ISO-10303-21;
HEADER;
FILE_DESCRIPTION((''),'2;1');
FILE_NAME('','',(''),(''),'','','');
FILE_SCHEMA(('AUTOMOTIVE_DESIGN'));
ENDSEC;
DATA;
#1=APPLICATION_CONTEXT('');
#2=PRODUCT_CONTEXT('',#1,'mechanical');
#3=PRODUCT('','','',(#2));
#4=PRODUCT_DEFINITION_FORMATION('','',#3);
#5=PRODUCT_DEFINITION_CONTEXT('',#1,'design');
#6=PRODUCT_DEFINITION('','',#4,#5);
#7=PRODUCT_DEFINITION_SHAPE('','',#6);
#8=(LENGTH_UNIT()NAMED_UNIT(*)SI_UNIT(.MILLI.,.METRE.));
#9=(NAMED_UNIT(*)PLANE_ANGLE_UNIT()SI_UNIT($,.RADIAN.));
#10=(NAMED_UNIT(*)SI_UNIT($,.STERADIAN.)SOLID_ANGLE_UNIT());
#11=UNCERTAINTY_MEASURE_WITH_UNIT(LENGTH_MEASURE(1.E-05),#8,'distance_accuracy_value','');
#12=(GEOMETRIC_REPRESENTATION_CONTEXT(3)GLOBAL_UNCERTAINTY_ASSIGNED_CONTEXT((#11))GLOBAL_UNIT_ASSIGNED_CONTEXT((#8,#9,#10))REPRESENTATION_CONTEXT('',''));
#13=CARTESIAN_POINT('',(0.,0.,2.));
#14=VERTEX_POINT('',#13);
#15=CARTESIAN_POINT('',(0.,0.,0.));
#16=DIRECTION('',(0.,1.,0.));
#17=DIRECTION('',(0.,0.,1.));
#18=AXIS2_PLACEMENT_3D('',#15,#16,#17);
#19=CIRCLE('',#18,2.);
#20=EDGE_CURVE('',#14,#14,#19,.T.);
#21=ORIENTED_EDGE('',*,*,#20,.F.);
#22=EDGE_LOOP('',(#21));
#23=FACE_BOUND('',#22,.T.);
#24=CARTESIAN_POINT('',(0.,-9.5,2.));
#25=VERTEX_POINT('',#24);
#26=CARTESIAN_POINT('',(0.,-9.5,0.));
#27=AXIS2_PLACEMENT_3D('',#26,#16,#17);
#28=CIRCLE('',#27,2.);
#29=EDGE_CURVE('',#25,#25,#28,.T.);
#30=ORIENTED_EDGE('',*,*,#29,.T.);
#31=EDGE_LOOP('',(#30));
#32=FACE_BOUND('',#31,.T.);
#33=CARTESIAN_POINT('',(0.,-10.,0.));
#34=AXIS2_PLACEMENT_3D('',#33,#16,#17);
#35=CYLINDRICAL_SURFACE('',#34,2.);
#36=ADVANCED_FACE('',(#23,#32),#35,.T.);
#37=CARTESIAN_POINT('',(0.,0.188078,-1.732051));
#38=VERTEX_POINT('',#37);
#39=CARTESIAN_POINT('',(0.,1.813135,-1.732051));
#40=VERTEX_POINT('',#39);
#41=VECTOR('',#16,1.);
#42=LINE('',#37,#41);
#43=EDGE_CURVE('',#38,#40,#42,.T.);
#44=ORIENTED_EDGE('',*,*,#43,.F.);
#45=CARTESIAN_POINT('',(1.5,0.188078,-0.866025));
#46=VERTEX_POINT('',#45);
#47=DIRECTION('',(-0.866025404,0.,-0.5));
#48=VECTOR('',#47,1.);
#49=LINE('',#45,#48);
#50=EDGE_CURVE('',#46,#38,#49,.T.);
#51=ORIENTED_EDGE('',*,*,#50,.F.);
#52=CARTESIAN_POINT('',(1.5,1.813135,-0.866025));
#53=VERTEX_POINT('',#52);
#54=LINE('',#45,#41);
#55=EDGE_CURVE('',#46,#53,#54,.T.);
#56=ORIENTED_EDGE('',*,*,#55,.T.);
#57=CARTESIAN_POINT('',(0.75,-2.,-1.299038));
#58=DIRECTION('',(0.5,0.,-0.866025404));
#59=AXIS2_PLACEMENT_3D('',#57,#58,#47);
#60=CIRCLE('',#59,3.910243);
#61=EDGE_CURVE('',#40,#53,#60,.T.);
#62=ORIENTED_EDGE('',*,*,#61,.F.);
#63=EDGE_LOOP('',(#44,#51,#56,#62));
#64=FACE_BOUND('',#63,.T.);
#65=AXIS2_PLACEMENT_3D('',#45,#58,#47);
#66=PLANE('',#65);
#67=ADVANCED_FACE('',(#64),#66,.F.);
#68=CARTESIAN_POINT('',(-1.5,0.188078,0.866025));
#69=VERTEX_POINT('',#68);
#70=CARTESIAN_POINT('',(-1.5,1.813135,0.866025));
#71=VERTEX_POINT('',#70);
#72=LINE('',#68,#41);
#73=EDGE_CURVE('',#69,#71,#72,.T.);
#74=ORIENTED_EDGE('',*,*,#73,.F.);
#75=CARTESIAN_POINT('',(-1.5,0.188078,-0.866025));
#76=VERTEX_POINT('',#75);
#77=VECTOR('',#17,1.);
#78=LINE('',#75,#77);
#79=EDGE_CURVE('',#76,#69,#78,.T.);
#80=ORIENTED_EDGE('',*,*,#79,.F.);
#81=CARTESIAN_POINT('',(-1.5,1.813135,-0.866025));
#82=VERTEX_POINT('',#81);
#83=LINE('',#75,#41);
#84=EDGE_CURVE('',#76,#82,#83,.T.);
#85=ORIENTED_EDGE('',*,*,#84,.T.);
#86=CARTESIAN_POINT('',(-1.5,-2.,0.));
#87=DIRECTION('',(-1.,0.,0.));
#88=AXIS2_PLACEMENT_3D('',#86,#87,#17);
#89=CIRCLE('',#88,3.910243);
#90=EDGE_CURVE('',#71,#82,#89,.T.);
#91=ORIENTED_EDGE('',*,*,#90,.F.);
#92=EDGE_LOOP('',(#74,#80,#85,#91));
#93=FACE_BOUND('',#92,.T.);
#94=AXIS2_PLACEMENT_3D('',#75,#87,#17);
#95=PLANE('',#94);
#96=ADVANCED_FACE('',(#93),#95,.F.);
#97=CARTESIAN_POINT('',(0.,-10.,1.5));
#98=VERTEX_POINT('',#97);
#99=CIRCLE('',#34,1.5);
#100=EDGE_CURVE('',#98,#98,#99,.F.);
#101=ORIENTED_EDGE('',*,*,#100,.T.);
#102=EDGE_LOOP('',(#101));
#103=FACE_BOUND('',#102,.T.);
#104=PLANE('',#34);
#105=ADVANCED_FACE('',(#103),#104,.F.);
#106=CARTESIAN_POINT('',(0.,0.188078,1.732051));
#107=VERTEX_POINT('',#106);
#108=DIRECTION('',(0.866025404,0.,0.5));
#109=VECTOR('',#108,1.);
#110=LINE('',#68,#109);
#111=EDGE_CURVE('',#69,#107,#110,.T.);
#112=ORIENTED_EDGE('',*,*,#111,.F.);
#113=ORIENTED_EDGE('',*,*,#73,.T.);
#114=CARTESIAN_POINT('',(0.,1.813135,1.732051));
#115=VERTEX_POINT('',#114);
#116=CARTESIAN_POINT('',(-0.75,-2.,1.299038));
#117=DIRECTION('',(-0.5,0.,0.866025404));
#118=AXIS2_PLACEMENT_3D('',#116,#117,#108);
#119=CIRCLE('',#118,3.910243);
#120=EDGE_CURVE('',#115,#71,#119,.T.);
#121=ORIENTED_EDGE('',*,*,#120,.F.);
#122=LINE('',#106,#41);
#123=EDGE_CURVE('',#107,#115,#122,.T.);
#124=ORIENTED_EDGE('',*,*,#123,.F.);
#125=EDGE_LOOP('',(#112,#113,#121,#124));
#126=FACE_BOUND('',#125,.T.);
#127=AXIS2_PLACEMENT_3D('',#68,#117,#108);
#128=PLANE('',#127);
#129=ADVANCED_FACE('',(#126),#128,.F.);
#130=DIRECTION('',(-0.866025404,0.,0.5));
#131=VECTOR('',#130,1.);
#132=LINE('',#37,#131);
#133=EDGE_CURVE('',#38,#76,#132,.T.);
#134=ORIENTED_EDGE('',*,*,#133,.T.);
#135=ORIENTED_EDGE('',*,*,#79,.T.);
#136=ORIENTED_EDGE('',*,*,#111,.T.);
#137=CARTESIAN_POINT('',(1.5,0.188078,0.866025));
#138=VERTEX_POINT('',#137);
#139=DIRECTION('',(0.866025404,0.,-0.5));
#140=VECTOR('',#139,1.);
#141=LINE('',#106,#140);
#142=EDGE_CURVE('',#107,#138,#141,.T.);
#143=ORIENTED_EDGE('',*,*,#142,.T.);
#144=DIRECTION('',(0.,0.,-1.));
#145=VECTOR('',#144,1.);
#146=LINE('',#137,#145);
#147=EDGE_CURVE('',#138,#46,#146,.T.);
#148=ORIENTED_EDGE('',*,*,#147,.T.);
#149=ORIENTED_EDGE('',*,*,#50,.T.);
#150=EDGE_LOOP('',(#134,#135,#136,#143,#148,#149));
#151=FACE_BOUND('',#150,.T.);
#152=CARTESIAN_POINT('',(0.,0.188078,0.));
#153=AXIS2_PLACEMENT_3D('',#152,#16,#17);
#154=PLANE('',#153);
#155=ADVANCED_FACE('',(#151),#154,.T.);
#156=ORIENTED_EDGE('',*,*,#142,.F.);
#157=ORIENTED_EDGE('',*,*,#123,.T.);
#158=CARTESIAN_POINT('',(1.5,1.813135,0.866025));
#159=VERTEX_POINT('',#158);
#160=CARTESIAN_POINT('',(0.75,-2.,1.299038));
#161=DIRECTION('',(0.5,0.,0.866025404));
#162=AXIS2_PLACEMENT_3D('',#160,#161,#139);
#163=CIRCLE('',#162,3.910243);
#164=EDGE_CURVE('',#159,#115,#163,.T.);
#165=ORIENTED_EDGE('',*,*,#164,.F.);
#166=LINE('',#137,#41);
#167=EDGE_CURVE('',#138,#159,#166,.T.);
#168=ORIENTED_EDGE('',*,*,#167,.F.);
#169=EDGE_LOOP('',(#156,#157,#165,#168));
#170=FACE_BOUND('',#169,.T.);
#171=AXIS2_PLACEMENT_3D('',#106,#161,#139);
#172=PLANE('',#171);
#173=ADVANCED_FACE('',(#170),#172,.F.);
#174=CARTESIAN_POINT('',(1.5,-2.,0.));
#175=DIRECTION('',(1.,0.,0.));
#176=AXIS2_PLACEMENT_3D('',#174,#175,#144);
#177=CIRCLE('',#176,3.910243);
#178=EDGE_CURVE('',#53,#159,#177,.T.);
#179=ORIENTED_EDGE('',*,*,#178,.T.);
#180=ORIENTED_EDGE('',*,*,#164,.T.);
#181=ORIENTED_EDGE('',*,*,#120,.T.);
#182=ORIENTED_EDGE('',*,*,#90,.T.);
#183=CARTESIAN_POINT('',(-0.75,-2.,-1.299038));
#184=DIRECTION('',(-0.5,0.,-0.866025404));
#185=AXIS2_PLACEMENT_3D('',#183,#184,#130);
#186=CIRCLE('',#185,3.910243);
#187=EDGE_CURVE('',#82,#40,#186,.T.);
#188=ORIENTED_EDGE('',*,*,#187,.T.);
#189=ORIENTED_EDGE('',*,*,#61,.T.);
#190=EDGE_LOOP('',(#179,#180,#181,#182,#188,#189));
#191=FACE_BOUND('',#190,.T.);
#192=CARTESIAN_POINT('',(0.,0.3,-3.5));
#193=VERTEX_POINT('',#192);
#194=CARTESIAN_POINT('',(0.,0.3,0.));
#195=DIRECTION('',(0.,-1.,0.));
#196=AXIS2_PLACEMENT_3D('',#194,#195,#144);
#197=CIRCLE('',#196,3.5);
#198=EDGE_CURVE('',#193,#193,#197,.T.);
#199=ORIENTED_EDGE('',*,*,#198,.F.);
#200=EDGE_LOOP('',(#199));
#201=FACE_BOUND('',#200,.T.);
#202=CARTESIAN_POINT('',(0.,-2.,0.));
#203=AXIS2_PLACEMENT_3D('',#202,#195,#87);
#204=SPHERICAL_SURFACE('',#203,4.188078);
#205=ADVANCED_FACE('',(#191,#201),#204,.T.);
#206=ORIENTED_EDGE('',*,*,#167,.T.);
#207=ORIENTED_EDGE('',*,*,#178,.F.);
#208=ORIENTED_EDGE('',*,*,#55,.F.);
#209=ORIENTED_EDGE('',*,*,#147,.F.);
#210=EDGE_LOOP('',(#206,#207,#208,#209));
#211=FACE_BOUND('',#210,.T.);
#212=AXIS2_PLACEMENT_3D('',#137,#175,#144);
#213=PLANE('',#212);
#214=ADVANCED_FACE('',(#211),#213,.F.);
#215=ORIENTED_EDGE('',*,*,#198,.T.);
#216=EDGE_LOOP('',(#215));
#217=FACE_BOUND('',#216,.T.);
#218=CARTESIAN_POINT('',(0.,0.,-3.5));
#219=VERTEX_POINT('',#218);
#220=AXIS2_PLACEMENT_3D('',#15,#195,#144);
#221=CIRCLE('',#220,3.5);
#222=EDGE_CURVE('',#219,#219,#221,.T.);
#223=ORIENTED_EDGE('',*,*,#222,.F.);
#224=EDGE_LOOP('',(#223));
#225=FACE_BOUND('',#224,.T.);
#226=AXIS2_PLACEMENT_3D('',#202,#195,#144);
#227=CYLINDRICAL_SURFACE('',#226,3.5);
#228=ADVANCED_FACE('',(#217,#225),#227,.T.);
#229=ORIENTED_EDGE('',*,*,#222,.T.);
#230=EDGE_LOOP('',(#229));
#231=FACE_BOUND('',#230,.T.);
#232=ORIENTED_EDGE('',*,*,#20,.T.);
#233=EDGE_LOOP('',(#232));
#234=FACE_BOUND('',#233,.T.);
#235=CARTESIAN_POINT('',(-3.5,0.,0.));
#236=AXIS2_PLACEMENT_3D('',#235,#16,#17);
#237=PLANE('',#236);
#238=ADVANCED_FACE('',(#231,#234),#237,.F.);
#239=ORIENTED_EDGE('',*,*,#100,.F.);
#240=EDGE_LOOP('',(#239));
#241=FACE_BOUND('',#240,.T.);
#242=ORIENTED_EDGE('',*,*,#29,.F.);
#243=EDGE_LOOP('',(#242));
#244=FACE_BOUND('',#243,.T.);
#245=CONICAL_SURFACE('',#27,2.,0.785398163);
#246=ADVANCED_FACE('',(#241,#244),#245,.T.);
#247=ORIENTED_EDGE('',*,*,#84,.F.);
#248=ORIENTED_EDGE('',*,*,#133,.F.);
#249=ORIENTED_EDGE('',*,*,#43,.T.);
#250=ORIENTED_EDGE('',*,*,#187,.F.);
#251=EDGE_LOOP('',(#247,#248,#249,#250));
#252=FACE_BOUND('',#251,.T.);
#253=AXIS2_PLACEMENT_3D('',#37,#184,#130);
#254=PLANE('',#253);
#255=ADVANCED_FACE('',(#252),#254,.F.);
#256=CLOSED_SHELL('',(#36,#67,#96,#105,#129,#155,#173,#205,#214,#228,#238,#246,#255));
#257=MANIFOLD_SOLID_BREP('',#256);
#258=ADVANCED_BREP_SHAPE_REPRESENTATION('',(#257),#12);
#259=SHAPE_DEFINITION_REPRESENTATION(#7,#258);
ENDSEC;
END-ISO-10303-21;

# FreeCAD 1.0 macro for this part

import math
import FreeCAD as App
import Part
import Sketcher
Q = App.Units.Quantity


def edges_at(feature, points):
    """Names of the edges that pass closest to the given points."""
    edges = feature.Shape.Edges
    near = lambda p: min(range(len(edges)), key=lambda i: edges[i].distToShape(Part.Vertex(*p))[0])
    return sorted({f"Edge{near(p) + 1}" for p in points})


def add_polygon(sketch, points):
    """Adds a closed chain of lines whose ends are joined by coincident constraints."""
    first, n = sketch.GeometryCount, len(points)
    for a, b in zip(points, points[1:] + points[:1]):
        sketch.addGeometry(Part.LineSegment(App.Vector(*a, 0), App.Vector(*b, 0)), False)
    for i in range(n):
        sketch.addConstraint(Sketcher.Constraint("Coincident", first + i, 2, first + (i + 1) % n, 1))

doc = App.newDocument("Part")
params = doc.addObject("Spreadsheet::Sheet", "Params")
for row, (alias, value) in enumerate([
    ("sketch1_diameter", "4 mm"),
    ("pad1_length", "10 mm"),
    ("sketch2_width", "3.5 mm"),
    ("sketch2_height", "0.3 mm"),
    ("revolution_angle", "360 deg"),
    ("chamfer_size", "0.5 mm"),
    ("pocket1_length", "2 mm"),
], start=1):
    params.set(f"A{row}", alias)
    params.set(f"B{row}", "=" + value)
    params.setAlias(f"B{row}", alias)

body = doc.addObject("PartDesign::Body", "Body")

# Sketch on XZ plane
sketch1 = body.newObject("Sketcher::SketchObject", "Sketch")
sketch1.AttachmentSupport = (doc.getObject("XZ_Plane"), [""])
sketch1.MapMode = "FlatFace"
sketch1.addGeometry(Part.Circle(App.Vector(0, 0, 0), App.Vector(0, 0, 1), 2), False)
sketch1.addConstraint(Sketcher.Constraint("Coincident", 0, 3, -1, 1))
sketch1.addConstraint(Sketcher.Constraint("Diameter", 0, Q("4 mm")))
sketch1.setExpression("Constraints[1]", "Params.sketch1_diameter")
pad1 = body.newObject("PartDesign::Pad", "Pad")
pad1.Profile = sketch1
pad1.setExpression("Length", "Params.pad1_length")

# Sketch on XY plane
sketch2 = body.newObject("Sketcher::SketchObject", "Sketch001")
sketch2.AttachmentSupport = (doc.getObject("XY_Plane"), [""])
sketch2.MapMode = "FlatFace"
sketch2.addGeometry(Part.LineSegment(App.Vector(-3.5, 0.3, 0), App.Vector(-3.5, 0, 0)), False)
sketch2.addGeometry(Part.LineSegment(App.Vector(-3.5, 0, 0), App.Vector(0, 0, 0)), False)
sketch2.addGeometry(Part.LineSegment(App.Vector(0, 0, 0), App.Vector(0, 2.19, 0)), False)
sketch2.addGeometry(Part.ArcOfCircle(Part.Circle(App.Vector(0, -2, 0), App.Vector(0, 0, 1), 4.19), math.radians(90), math.radians(147)), False)
sketch2.addConstraint(Sketcher.Constraint("Coincident", 0, 2, 1, 1))
sketch2.addConstraint(Sketcher.Constraint("Coincident", 1, 2, 2, 1))
sketch2.addConstraint(Sketcher.Constraint("Coincident", 2, 2, 3, 1))
sketch2.addConstraint(Sketcher.Constraint("Coincident", 3, 2, 0, 1))
sketch2.addConstraint(Sketcher.Constraint("Vertical", 0))
sketch2.addConstraint(Sketcher.Constraint("Horizontal", 1))
sketch2.addConstraint(Sketcher.Constraint("Vertical", 2))
sketch2.addConstraint(Sketcher.Constraint("Coincident", 1, 2, -1, 1))
sketch2.addConstraint(Sketcher.Constraint("PointOnObject", 3, 3, -2))
sketch2.addConstraint(Sketcher.Constraint("DistanceX", 1, 1, 1, 2, Q("3.5 mm")))
sketch2.addConstraint(Sketcher.Constraint("DistanceY", 0, 2, 0, 1, Q("0.3 mm")))
sketch2.addConstraint(Sketcher.Constraint("DistanceY", 3, 3, -1, 1, Q("2 mm")))
sketch2.setExpression("Constraints[9]", "Params.sketch2_width")
sketch2.setExpression("Constraints[10]", "Params.sketch2_height")
revolution = body.newObject("PartDesign::Revolution", "Revolution")
revolution.Profile = sketch2
revolution.ReferenceAxis = (sketch2, ["V_Axis"])
revolution.setExpression("Angle", "Params.revolution_angle")
doc.recompute()

chamfer = body.newObject("PartDesign::Chamfer", "Chamfer")
chamfer.Base = (revolution, edges_at(revolution, [(-2, -10, 0)]))
chamfer.setExpression("Size", "Params.chamfer_size")

# Sketch on XZ plane
sketch3 = body.newObject("Sketcher::SketchObject", "Sketch002")
sketch3.AttachmentSupport = (doc.getObject("XZ_Plane"), [""])
sketch3.MapMode = "FlatFace"
sketch3.AttachmentOffset = App.Placement(App.Vector(0, 0, -2.188078), App.Rotation())
add_polygon(sketch3, [(0, -1.7), (-1.5, -0.9), (-1.5, 0.9), (0, 1.7), (1.5, 0.9), (1.5, -0.9)])  # lines 0-5
sketch3.addConstraint(Sketcher.Constraint("Vertical", 1))
sketch3.addConstraint(Sketcher.Constraint("Vertical", 4))
sketch3.addConstraint(Sketcher.Constraint("Symmetric", 0, 2, 3, 2, -1, 1))
sketch3.addConstraint(Sketcher.Constraint("Symmetric", 2, 2, 5, 2, -1, 1))
sketch3.addConstraint(Sketcher.Constraint("PointOnObject", 2, 2, -2))
sketch3.addConstraint(Sketcher.Constraint("Parallel", 2, 5))
sketch3.addConstraint(Sketcher.Constraint("Horizontal", 1, 2, 3, 2))
sketch3.addConstraint(Sketcher.Constraint("Angle", 0, Q("150 deg")))
sketch3.addConstraint(Sketcher.Constraint("DistanceX", 1, 2, 3, 2, Q("3 mm")))
sketch3.addConstraint(Sketcher.Constraint("DistanceY", 1, 1, 1, 2, Q("1.732051 mm")))
pocket1 = body.newObject("PartDesign::Pocket", "Pocket")
pocket1.Profile = sketch3
pocket1.setExpression("Length", "Params.pocket1_length")
pocket1.Reversed = True

doc.recompute()
